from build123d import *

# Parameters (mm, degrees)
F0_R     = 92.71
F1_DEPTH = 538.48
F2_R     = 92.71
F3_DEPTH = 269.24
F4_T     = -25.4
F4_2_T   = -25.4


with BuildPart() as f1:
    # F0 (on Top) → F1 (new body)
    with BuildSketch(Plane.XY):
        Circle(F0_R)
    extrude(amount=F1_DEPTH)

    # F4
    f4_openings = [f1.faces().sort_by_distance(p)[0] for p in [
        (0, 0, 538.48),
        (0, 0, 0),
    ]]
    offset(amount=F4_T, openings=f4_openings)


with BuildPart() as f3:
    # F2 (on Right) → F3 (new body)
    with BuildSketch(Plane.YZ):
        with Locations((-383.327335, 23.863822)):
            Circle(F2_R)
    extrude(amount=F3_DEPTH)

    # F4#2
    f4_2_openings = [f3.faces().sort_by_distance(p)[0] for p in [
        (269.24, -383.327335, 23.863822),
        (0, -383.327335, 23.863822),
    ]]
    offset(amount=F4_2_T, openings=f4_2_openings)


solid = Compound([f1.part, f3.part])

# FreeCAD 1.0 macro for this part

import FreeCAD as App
import Part
import Sketcher

V = App.Vector
Q = App.Units.Quantity


def faces_at(feature, points):
    """Names of the faces that lie closest to the given points."""
    faces = feature.Shape.Faces
    near = lambda p: min(range(len(faces)), key=lambda i: faces[i].distToShape(Part.Vertex(*p))[0])
    return sorted({f"Face{near(p) + 1}" for p in points})

doc = App.newDocument("Part")
body = doc.addObject("PartDesign::Body", "Body")

# Sketch on XY plane
sketch1 = body.newObject("Sketcher::SketchObject", "Sketch")
sketch1.AttachmentSupport = (doc.getObject("XY_Plane"), [""])
sketch1.MapMode = "FlatFace"
sketch1.addGeometry(Part.Circle(V(0, 0, 0), V(0, 0, 1), 93), False)
sketch1.addConstraint([
    Sketcher.Constraint("Coincident", 0, 3, -1, 1),
    Sketcher.Constraint("Diameter", 0, Q("7.3 in")),
])
pad1 = body.newObject("PartDesign::Pad", "Pad")
pad1.Profile = sketch1
pad1.Length = Q("21.2 in")
doc.recompute()

thickness = body.newObject("PartDesign::Thickness", "Thickness")
thickness.Base = (pad1, faces_at(pad1, [(0, 0, 538.48), (0, 0, 0)]))
thickness.Value = Q("1 in")
thickness.Reversed = True
thickness.Join = "Arc"
body2 = doc.addObject("PartDesign::Body", "Body001")

# Sketch on YZ plane
sketch2 = body2.newObject("Sketcher::SketchObject", "Sketch001")
sketch2.AttachmentSupport = (doc.getObject("YZ_Plane001"), [""])
sketch2.MapMode = "FlatFace"
sketch2.addGeometry(Part.Circle(V(-383, 24, 0), V(0, 0, 1), 93), False)
sketch2.addConstraint([
    Sketcher.Constraint("Diameter", 0, Q("7.3 in")),
    Sketcher.Constraint("DistanceY", -1, 1, 0, 3, 23.863822),
    Sketcher.Constraint("DistanceX", 0, 3, -1, 1, 383.327335),
])
pad2 = body2.newObject("PartDesign::Pad", "Pad001")
pad2.Profile = sketch2
pad2.Length = Q("10.6 in")
doc.recompute()

thickness2 = body2.newObject("PartDesign::Thickness", "Thickness001")
thickness2.Base = (pad2, faces_at(pad2, [(269.24, -383.327, 23.864), (0, -383.327, 23.864)]))
thickness2.Value = Q("1 in")
thickness2.Reversed = True
thickness2.Join = "Arc"

doc.recompute()
